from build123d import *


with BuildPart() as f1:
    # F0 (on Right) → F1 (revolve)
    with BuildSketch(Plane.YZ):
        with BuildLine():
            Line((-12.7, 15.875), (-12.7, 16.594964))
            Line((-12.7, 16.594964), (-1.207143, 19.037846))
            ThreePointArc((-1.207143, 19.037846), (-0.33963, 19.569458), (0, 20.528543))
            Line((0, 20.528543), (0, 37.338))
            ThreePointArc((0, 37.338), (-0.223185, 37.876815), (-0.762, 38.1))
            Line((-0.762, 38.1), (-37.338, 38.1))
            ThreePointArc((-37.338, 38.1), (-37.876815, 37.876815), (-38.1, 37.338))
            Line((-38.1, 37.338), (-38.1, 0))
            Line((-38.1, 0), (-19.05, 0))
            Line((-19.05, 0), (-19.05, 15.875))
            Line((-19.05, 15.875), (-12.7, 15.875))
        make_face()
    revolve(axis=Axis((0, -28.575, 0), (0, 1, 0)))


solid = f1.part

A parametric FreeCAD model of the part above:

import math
import FreeCAD as App
import Part
import Sketcher

V = App.Vector
Q = App.Units.Quantity

doc = App.newDocument("Part")
body = doc.addObject("PartDesign::Body", "Body")

# Sketch on YZ plane
sketch1 = body.newObject("Sketcher::SketchObject", "Sketch")
sketch1.AttachmentSupport = (doc.getObject("YZ_Plane"), [""])
sketch1.MapMode = "FlatFace"
sketch1.addGeometry(Part.LineSegment(V(-12.7, 15.9, 0), V(-12.7, 16.6, 0)), False)
sketch1.addGeometry(Part.LineSegment(V(-12.7, 16.6, 0), V(-1.2, 19, 0)), False)
sketch1.addGeometry(Part.ArcOfCircle(Part.Circle(V(-1.5, 20.5, 0), V(0, 0, 1), 1.5), math.radians(-78), math.radians(0)), False)
sketch1.addGeometry(Part.LineSegment(V(0, 20.5, 0), V(0, 37.3, 0)), False)
sketch1.addGeometry(Part.ArcOfCircle(Part.Circle(V(-0.8, 37.3, 0), V(0, 0, 1), 0.8), math.radians(0), math.radians(90)), False)
sketch1.addGeometry(Part.LineSegment(V(-0.8, 38.1, 0), V(-37.3, 38.1, 0)), False)
sketch1.addGeometry(Part.ArcOfCircle(Part.Circle(V(-37.3, 37.3, 0), V(0, 0, 1), 0.8), math.radians(90), math.radians(180)), False)
sketch1.addGeometry(Part.LineSegment(V(-38.1, 37.3, 0), V(-38.1, 0, 0)), False)
sketch1.addGeometry(Part.LineSegment(V(-38.1, 0, 0), V(-19.1, 0, 0)), False)
sketch1.addGeometry(Part.LineSegment(V(-19.1, 0, 0), V(-19.1, 15.9, 0)), False)
sketch1.addGeometry(Part.LineSegment(V(-19.1, 15.9, 0), V(-12.7, 15.9, 0)), False)
sketch1.addConstraint(Sketcher.Constraint("Coincident", 0, 2, 1, 1))
sketch1.addConstraint(Sketcher.Constraint("Tangent", 1, 2, 2, 1))
sketch1.addConstraint(Sketcher.Constraint("Tangent", 2, 2, 3, 1))
sketch1.addConstraint(Sketcher.Constraint("Tangent", 3, 2, 4, 1))
sketch1.addConstraint(Sketcher.Constraint("Tangent", 4, 2, 5, 1))
sketch1.addConstraint(Sketcher.Constraint("Tangent", 5, 2, 6, 1))
sketch1.addConstraint(Sketcher.Constraint("Tangent", 6, 2, 7, 1))
sketch1.addConstraint(Sketcher.Constraint("Coincident", 7, 2, 8, 1))
sketch1.addConstraint(Sketcher.Constraint("Coincident", 8, 2, 9, 1))
sketch1.addConstraint(Sketcher.Constraint("Coincident", 9, 2, 10, 1))
sketch1.addConstraint(Sketcher.Constraint("Coincident", 10, 2, 0, 1))
sketch1.addConstraint(Sketcher.Constraint("Vertical", 0))
sketch1.addConstraint(Sketcher.Constraint("Vertical", 3))
sketch1.addConstraint(Sketcher.Constraint("Horizontal", 5))
sketch1.addConstraint(Sketcher.Constraint("Vertical", 7))
sketch1.addConstraint(Sketcher.Constraint("Horizontal", 8))
sketch1.addConstraint(Sketcher.Constraint("Vertical", 9))
sketch1.addConstraint(Sketcher.Constraint("Horizontal", 10))
sketch1.addConstraint(Sketcher.Constraint("Equal", 4, 6))
sketch1.addConstraint(Sketcher.Constraint("PointOnObject", 2, 2, -2))
sketch1.addConstraint(Sketcher.Constraint("PointOnObject", 7, 2, -1))
sketch1.addConstraint(Sketcher.Constraint("Radius", 2, Q("0.06 in")))
sketch1.addConstraint(Sketcher.Constraint("Radius", 4, Q("0.03 in")))
sketch1.addConstraint(Sketcher.Constraint("Angle", 1, Q("11.999999 deg")))
sketch1.addConstraint(Sketcher.Constraint("DistanceX", 6, 2, 0, 2, Q("1 in")))
sketch1.addConstraint(Sketcher.Constraint("DistanceX", 5, 2, 5, 1, Q("1.44 in")))
sketch1.addConstraint(Sketcher.Constraint("DistanceX", 8, 1, 8, 2, Q("0.75 in")))
sketch1.addConstraint(Sketcher.Constraint("DistanceY", 7, 2, 7, 1, Q("1.47 in")))
sketch1.addConstraint(Sketcher.Constraint("DistanceY", 9, 1, 9, 2, Q("0.625 in")))
sketch1.addConstraint(Sketcher.Constraint("DistanceY", 0, 1, 0, 2, 0.719964))
revolution = body.newObject("PartDesign::Revolution", "Revolution")
revolution.Profile = sketch1
revolution.ReferenceAxis = (sketch1, ["H_Axis"])
revolution.Angle = 360

doc.recompute()
